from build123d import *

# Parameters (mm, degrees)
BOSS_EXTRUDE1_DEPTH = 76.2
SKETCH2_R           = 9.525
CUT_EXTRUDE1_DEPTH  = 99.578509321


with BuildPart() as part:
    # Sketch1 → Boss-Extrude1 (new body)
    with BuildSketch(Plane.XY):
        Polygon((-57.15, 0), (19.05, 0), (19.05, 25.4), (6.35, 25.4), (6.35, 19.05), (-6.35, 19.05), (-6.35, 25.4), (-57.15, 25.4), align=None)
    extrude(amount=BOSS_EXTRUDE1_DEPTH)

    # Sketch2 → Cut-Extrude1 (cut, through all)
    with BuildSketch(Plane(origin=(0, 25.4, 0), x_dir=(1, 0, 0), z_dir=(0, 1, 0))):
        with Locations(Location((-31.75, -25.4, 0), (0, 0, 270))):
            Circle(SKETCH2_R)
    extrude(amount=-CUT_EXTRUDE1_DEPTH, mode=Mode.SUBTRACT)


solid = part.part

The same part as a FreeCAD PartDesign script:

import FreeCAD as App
import Part
import Sketcher

V = App.Vector
Q = App.Units.Quantity

doc = App.newDocument("Part")
body = doc.addObject("PartDesign::Body", "Body")

# Sketch on XY plane
sketch1 = doc.addObject("Sketcher::SketchObject", "Sketch")
body.addObject(sketch1)
sketch1.AttachmentSupport = (doc.XY_Plane, [""])
sketch1.MapMode = "FlatFace"
sketch1.addGeometry([
    Part.LineSegment(V(-57, 0, 0), V(19, 0, 0)),  # 0
    Part.LineSegment(V(19, 0, 0), V(19, 25, 0)),  # 1
    Part.LineSegment(V(19, 25, 0), V(6, 25, 0)),  # 2
    Part.LineSegment(V(6, 25, 0), V(6, 19, 0)),  # 3
    Part.LineSegment(V(6, 19, 0), V(-6, 19, 0)),  # 4
    Part.LineSegment(V(-6, 19, 0), V(-6, 25, 0)),  # 5
    Part.LineSegment(V(-6, 25, 0), V(-57, 25, 0)),  # 6
    Part.LineSegment(V(-57, 25, 0), V(-57, 0, 0)),  # 7
], False)
sketch1.addConstraint([
    Sketcher.Constraint("Coincident", 0, 2, 1, 1),
    Sketcher.Constraint("Coincident", 1, 2, 2, 1),
    Sketcher.Constraint("Coincident", 2, 2, 3, 1),
    Sketcher.Constraint("Coincident", 3, 2, 4, 1),
    Sketcher.Constraint("Coincident", 4, 2, 5, 1),
    Sketcher.Constraint("Coincident", 5, 2, 6, 1),
    Sketcher.Constraint("Coincident", 6, 2, 7, 1),
    Sketcher.Constraint("Coincident", 7, 2, 0, 1),
    Sketcher.Constraint("Horizontal", 0),
    Sketcher.Constraint("Vertical", 1),
    Sketcher.Constraint("Horizontal", 2),
    Sketcher.Constraint("Vertical", 3),
    Sketcher.Constraint("Horizontal", 4),
    Sketcher.Constraint("Vertical", 5),
    Sketcher.Constraint("Horizontal", 6),
    Sketcher.Constraint("Vertical", 7),
    Sketcher.Constraint("Symmetric", 2, 2, 5, 2, -2),
    Sketcher.Constraint("PointOnObject", 0, 2, -1),
    Sketcher.Constraint("Equal", 2, 4),
    Sketcher.Constraint("DistanceX", 0, 1, 0, 2, Q("3 in")),
    Sketcher.Constraint("DistanceX", 6, 2, 6, 1, Q("2 in")),
    Sketcher.Constraint("DistanceY", 1, 1, 1, 2, Q("1 in")),
    Sketcher.Constraint("DistanceY", 3, 2, 3, 1, Q("0.25 in")),
])
pad1 = doc.addObject("PartDesign::Pad", "Pad")
body.addObject(pad1)
pad1.Profile = sketch1
pad1.Length = Q("3 in")

# Sketch on XZ plane
sketch2 = doc.addObject("Sketcher::SketchObject", "Sketch001")
body.addObject(sketch2)
sketch2.AttachmentSupport = (doc.XZ_Plane, [""])
sketch2.MapMode = "FlatFace"
sketch2.AttachmentOffset = App.Placement(V(0, 0, -1 * 25.4), App.Rotation())
sketch2.addGeometry(Part.Circle(V(-32, 25, 0), V(0, 0, 1), 10), False)
sketch2.addConstraint([
    Sketcher.Constraint("Diameter", 0, Q("0.75 in")),
    Sketcher.Constraint("DistanceY", -1, 1, 0, 3, Q("1 in")),
    Sketcher.Constraint("DistanceX", 0, 3, -1, 1, Q("1.25 in")),
])
pocket1 = doc.addObject("PartDesign::Pocket", "Pocket")
body.addObject(pocket1)
pocket1.Profile = sketch2
pocket1.Type = "ThroughAll"
pocket1.Reversed = True

doc.recompute()
